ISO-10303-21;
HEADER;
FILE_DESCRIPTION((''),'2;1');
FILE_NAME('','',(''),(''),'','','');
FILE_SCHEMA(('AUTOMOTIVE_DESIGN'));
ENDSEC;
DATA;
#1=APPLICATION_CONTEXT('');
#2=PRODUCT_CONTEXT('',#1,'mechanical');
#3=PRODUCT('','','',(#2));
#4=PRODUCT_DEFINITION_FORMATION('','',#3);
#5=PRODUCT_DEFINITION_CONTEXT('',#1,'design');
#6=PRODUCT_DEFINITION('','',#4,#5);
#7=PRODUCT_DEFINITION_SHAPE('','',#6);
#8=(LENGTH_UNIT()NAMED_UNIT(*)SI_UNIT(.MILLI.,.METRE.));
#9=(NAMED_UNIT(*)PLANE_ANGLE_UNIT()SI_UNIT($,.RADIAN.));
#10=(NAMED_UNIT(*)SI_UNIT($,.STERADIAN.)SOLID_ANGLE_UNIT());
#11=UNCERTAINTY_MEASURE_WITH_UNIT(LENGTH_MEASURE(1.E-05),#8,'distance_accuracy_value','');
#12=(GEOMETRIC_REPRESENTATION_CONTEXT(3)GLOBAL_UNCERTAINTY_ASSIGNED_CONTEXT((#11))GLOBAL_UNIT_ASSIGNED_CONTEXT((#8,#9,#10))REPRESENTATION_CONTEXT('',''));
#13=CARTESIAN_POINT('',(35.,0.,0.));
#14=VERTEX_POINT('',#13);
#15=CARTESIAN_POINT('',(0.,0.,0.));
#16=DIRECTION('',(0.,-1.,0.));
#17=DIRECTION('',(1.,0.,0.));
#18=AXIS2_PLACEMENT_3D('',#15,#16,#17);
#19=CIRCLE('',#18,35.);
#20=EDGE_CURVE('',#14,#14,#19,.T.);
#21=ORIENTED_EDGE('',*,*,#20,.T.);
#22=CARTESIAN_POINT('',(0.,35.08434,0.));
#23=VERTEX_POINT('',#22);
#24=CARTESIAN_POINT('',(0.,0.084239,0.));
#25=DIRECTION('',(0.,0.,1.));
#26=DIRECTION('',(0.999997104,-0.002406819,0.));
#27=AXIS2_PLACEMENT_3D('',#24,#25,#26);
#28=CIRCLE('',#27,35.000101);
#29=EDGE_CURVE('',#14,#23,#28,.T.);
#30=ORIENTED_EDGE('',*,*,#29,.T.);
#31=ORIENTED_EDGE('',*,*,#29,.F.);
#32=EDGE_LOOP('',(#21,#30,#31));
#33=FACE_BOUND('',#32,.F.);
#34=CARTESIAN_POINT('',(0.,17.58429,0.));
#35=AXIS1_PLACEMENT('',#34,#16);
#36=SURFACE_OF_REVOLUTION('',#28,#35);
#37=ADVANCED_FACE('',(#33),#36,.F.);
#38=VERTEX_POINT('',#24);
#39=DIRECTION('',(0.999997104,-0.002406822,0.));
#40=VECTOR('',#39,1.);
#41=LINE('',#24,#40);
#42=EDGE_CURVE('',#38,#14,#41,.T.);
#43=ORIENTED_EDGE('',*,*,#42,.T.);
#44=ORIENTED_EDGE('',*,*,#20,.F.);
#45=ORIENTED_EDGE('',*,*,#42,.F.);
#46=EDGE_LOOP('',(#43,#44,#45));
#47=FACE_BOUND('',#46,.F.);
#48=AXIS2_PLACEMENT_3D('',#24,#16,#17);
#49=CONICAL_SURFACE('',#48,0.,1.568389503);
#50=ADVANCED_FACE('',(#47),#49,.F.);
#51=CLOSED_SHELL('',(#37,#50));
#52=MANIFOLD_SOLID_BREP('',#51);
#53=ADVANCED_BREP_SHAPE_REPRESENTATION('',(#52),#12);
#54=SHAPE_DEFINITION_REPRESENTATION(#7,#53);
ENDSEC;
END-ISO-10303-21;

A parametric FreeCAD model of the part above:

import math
import FreeCAD as App
import Part
import Sketcher
from FreeCAD import Vector
Q = App.Units.Quantity

doc = App.newDocument("Part")
body = doc.addObject("PartDesign::Body", "Body")

# Sketch on XY plane
sketch1 = doc.addObject("Sketcher::SketchObject", "Sketch")
body.addObject(sketch1)
sketch1.AttachmentSupport = (doc.XY_Plane, [""])
sketch1.MapMode = "FlatFace"
sketch1.addGeometry(Part.LineSegment(Vector(0, 0.084239, 0), Vector(35, 0, 0)), False)
sketch1.addGeometry(Part.ArcOfCircle(Part.Circle(Vector(0, 0.084239, 0), Vector(0, 0, 1), 35.000101), math.radians(-0.137901), math.radians(90)), False)
sketch1.addGeometry(Part.LineSegment(Vector(0, 35.08434, 0), Vector(0, 0.084239, 0)), False)
sketch1.addConstraint(Sketcher.Constraint("Coincident", 0, 2, 1, 1))
sketch1.addConstraint(Sketcher.Constraint("Coincident", 1, 2, 2, 1))
sketch1.addConstraint(Sketcher.Constraint("Coincident", 2, 2, 0, 1))
sketch1.addConstraint(Sketcher.Constraint("Vertical", 2))
sketch1.addConstraint(Sketcher.Constraint("Coincident", 2, 2, 1, 3))
sketch1.addConstraint(Sketcher.Constraint("PointOnObject", 1, 3, -2))
sketch1.addConstraint(Sketcher.Constraint("PointOnObject", 0, 2, -1))
sketch1.addConstraint(Sketcher.Constraint("DistanceX", -1, 1, 0, 2, Q("35 mm")))
sketch1.addConstraint(Sketcher.Constraint("DistanceY", -1, 1, 1, 3, Q("0.084239 mm")))
revolution = doc.addObject("PartDesign::Revolution", "Revolution")
body.addObject(revolution)
revolution.Profile = sketch1
revolution.ReferenceAxis = (sketch1, ["V_Axis"])
revolution.Angle = 360

doc.recompute()
